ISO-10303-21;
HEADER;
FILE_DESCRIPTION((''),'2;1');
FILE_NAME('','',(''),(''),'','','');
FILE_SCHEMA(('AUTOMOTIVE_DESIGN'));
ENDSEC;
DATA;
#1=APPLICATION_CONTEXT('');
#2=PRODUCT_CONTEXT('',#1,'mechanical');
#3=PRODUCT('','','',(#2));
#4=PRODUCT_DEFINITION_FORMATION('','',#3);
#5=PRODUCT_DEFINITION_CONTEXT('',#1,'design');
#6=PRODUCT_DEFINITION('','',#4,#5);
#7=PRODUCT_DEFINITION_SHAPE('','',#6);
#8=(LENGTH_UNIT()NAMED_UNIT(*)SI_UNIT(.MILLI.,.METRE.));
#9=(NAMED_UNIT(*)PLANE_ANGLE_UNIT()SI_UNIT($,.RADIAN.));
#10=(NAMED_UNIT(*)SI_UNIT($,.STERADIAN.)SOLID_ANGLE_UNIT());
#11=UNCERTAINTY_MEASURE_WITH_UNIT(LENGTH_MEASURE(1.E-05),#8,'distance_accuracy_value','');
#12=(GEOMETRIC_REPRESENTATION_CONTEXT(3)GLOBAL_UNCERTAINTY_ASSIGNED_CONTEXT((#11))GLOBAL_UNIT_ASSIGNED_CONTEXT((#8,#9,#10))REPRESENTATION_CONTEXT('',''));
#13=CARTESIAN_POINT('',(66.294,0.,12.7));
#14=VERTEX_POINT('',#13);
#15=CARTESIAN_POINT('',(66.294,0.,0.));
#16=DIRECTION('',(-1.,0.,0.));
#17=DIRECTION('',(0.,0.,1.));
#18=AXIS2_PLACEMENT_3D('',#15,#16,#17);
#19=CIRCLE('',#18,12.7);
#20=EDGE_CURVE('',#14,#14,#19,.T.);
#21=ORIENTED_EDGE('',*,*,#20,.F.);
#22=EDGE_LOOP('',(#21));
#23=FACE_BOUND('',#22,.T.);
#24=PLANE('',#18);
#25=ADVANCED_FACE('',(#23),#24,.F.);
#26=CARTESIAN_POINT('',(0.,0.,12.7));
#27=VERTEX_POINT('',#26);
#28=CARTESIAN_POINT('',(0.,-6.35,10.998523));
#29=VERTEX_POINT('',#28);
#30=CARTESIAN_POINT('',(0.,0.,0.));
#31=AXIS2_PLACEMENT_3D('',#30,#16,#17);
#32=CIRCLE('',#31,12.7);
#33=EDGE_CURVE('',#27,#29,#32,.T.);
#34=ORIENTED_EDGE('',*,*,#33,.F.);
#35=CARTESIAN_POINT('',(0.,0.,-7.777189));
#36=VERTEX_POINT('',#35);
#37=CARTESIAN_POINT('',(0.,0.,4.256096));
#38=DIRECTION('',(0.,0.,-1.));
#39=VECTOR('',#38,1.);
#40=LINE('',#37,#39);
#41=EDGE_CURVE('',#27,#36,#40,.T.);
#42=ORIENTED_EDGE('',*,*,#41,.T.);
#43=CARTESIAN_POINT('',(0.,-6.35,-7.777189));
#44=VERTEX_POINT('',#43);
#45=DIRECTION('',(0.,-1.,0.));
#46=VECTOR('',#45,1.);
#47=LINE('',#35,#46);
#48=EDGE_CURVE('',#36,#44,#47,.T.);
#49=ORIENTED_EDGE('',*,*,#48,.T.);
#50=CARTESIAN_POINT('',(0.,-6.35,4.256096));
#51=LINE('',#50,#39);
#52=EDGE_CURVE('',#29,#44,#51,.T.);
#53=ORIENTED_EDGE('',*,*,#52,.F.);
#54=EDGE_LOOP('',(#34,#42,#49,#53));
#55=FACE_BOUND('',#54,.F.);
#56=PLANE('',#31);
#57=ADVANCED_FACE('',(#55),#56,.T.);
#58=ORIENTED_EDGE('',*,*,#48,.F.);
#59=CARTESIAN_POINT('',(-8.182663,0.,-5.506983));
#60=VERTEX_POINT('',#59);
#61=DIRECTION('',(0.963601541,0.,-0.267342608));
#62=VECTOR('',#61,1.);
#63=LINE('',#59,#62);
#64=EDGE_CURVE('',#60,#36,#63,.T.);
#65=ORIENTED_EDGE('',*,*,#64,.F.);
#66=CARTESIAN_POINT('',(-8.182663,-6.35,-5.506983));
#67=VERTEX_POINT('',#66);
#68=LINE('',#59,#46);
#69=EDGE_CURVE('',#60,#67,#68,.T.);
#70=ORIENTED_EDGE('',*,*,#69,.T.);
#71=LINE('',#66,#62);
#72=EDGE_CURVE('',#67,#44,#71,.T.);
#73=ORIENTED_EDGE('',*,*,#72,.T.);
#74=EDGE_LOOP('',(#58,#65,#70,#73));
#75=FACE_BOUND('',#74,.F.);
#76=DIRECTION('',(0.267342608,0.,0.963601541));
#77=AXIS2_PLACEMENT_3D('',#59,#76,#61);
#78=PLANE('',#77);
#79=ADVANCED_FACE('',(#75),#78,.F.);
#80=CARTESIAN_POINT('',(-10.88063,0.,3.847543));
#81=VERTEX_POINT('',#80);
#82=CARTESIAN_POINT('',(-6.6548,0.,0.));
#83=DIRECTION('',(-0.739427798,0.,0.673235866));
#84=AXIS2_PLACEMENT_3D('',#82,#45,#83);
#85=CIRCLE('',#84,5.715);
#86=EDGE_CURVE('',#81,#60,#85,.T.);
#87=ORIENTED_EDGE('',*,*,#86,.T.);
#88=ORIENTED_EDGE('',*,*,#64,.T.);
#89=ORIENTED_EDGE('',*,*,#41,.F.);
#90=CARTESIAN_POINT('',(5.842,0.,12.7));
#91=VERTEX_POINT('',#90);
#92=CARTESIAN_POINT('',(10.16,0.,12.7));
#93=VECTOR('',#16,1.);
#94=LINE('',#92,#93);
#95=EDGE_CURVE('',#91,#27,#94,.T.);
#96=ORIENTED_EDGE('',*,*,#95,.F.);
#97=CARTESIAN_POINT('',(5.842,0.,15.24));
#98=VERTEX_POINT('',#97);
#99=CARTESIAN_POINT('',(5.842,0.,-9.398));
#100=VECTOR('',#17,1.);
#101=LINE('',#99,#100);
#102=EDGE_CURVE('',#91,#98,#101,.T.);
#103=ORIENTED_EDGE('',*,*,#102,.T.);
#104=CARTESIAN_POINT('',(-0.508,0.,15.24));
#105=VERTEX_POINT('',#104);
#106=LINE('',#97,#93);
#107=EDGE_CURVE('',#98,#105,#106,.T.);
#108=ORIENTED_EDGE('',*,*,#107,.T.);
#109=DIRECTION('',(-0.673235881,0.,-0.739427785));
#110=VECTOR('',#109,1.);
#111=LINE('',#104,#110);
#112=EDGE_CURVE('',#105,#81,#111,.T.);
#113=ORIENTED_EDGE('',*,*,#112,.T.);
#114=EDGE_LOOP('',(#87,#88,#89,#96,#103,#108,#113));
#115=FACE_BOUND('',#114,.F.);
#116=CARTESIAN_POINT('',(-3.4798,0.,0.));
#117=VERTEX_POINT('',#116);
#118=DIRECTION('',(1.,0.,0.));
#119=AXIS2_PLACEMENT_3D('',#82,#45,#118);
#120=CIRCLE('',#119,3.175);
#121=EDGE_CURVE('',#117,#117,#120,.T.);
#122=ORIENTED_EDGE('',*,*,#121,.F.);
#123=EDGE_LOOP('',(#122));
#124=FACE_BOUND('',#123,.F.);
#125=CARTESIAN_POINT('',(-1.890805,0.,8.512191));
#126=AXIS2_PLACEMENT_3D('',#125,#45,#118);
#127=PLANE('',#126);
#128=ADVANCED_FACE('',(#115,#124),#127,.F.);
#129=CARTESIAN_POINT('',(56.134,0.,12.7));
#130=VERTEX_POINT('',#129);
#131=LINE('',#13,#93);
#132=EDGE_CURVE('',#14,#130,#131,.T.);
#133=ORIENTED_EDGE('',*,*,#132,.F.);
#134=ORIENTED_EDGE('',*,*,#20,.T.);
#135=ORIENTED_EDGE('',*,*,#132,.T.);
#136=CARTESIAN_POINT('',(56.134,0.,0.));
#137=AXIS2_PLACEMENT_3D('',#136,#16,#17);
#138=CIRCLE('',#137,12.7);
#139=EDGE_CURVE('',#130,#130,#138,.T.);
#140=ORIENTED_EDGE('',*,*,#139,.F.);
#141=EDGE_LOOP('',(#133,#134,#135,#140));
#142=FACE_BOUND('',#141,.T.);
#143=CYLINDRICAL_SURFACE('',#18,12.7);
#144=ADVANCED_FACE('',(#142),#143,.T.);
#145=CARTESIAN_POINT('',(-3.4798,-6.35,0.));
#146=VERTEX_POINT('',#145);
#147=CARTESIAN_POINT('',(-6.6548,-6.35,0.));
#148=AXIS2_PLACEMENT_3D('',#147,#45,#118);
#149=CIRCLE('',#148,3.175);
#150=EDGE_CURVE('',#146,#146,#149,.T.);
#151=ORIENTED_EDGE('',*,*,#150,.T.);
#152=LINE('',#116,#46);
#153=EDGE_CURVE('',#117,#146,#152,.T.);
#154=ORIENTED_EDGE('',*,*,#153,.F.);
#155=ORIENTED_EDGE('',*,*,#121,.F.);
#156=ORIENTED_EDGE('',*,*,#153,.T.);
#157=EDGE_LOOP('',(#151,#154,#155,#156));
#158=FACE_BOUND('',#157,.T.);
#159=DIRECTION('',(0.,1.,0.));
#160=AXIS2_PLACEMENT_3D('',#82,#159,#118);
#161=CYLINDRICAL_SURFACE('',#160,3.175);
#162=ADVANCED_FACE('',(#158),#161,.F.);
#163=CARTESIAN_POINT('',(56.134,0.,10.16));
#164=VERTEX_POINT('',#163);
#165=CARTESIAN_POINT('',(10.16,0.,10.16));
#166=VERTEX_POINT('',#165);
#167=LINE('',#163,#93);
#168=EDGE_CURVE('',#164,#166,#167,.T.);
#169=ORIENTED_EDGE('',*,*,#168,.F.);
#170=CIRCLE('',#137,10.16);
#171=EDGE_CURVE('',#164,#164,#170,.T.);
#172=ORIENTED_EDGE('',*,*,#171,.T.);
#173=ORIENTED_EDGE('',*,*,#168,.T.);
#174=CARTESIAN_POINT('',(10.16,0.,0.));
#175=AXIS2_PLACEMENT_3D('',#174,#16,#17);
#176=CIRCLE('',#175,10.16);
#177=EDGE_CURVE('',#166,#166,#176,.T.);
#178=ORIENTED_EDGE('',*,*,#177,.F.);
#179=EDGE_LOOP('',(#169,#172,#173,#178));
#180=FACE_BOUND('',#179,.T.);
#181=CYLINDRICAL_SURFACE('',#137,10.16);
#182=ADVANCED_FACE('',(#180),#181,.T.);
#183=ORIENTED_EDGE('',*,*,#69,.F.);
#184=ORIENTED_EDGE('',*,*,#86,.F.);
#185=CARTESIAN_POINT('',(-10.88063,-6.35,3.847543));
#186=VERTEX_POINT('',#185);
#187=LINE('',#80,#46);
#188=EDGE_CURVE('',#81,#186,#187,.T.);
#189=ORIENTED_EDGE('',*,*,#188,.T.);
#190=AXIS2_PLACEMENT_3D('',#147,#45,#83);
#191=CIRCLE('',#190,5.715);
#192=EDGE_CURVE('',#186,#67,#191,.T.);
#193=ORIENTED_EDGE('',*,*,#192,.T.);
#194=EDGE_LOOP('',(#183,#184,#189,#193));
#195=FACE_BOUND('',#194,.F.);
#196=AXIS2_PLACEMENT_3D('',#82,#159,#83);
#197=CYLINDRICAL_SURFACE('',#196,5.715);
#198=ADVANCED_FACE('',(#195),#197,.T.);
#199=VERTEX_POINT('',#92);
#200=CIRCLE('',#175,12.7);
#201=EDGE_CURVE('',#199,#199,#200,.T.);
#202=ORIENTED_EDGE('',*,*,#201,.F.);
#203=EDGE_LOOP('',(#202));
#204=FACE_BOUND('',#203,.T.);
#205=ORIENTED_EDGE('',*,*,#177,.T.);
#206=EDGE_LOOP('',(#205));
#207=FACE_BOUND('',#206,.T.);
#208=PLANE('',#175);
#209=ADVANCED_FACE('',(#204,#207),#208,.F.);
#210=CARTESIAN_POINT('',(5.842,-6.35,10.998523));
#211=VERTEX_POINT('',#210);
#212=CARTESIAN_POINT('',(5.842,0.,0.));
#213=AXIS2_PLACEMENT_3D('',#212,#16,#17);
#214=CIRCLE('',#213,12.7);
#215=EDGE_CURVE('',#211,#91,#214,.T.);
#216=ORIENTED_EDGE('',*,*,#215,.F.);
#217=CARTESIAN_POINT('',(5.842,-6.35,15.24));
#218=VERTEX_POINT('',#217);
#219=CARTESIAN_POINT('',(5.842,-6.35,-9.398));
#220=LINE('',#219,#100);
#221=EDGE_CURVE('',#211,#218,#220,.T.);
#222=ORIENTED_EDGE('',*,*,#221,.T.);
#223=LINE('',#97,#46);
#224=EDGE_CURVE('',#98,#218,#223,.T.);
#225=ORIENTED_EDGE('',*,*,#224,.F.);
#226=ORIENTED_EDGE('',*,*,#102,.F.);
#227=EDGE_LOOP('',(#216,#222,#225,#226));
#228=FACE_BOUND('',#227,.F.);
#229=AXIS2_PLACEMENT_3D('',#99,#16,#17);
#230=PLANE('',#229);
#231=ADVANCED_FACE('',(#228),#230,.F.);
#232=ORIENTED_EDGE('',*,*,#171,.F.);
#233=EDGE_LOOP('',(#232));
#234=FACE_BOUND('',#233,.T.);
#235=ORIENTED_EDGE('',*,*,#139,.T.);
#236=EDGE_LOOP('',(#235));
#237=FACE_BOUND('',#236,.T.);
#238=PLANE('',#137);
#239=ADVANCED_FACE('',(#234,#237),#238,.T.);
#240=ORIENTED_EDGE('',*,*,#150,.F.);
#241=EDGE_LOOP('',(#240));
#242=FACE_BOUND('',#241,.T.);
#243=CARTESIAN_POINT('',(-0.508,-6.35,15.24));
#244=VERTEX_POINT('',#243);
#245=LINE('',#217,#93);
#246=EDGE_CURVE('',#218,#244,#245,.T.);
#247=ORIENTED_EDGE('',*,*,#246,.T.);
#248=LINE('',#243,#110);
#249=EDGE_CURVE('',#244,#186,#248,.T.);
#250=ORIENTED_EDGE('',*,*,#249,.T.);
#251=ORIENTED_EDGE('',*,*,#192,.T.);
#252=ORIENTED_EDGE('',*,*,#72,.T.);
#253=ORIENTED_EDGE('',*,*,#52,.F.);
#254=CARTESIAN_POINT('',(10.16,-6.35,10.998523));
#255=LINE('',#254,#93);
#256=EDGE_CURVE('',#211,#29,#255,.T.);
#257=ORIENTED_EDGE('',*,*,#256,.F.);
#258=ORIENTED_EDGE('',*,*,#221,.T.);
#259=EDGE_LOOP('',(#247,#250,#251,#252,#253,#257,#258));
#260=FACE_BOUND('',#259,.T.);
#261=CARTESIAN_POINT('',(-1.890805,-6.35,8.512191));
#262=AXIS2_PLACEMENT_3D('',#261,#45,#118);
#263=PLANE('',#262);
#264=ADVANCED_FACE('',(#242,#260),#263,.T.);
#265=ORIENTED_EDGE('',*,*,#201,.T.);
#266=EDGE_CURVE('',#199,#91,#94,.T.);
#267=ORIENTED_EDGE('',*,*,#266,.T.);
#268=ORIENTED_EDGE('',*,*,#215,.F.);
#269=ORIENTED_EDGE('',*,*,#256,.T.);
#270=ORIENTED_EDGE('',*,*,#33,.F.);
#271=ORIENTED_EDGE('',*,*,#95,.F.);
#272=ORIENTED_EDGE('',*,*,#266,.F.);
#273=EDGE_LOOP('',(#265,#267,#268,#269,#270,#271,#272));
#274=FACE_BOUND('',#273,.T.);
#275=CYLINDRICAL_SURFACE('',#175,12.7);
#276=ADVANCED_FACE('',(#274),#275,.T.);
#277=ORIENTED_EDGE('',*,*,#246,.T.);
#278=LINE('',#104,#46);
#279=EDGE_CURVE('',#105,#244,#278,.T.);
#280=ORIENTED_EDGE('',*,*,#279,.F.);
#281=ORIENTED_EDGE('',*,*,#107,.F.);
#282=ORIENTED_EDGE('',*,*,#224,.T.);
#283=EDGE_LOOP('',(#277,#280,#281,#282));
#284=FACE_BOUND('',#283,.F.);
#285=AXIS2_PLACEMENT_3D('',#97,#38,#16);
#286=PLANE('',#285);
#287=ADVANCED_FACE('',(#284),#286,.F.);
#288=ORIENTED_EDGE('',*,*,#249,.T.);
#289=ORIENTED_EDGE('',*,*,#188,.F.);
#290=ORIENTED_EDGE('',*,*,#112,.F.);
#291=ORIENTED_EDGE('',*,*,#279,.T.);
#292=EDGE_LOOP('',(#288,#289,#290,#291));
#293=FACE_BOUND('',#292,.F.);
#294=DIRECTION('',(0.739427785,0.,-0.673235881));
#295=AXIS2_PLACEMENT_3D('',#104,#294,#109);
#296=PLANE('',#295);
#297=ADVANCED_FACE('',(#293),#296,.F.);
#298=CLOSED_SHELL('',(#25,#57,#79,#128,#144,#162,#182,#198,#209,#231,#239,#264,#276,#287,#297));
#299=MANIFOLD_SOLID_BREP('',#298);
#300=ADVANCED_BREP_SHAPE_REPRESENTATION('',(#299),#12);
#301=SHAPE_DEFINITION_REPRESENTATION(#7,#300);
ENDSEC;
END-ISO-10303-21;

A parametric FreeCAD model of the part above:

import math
import FreeCAD as App
import Part
import Sketcher
from FreeCAD import Vector
Q = App.Units.Quantity

doc = App.newDocument("Part")
body = doc.addObject("PartDesign::Body", "Body")

# Sketch on XZ plane
sketch1 = body.newObject("Sketcher::SketchObject", "Sketch")
sketch1.AttachmentSupport = (doc.getObject("XZ_Plane"), [""])
sketch1.MapMode = "FlatFace"
sketch1.addGeometry([
    Part.LineSegment(Vector(66.3, 0, 0), Vector(66.3, 12.7, 0)),  # 0
    Part.LineSegment(Vector(66.3, 12.7, 0), Vector(56.1, 12.7, 0)),  # 1
    Part.LineSegment(Vector(56.1, 12.7, 0), Vector(56.1, 10.2, 0)),  # 2
    Part.LineSegment(Vector(56.1, 10.2, 0), Vector(10.2, 10.2, 0)),  # 3
    Part.LineSegment(Vector(10.2, 10.2, 0), Vector(10.2, 12.7, 0)),  # 4
    Part.LineSegment(Vector(10.2, 12.7, 0), Vector(0, 12.7, 0)),  # 5
    Part.LineSegment(Vector(0, 12.7, 0), Vector(0, 0, 0)),  # 6
    Part.LineSegment(Vector(0, 0, 0), Vector(66.3, 0, 0)),  # 7
], False)
sketch1.addConstraint([
    Sketcher.Constraint("Coincident", 0, 2, 1, 1),
    Sketcher.Constraint("Coincident", 1, 2, 2, 1),
    Sketcher.Constraint("Coincident", 2, 2, 3, 1),
    Sketcher.Constraint("Coincident", 3, 2, 4, 1),
    Sketcher.Constraint("Coincident", 4, 2, 5, 1),
    Sketcher.Constraint("Coincident", 5, 2, 6, 1),
    Sketcher.Constraint("Coincident", 6, 2, 7, 1),
    Sketcher.Constraint("Coincident", 7, 2, 0, 1),
    Sketcher.Constraint("Vertical", 0),
    Sketcher.Constraint("Horizontal", 1),
    Sketcher.Constraint("Vertical", 2),
    Sketcher.Constraint("Horizontal", 3),
    Sketcher.Constraint("Vertical", 4),
    Sketcher.Constraint("Horizontal", 5),
    Sketcher.Constraint("Vertical", 6),
    Sketcher.Constraint("Horizontal", 7),
    Sketcher.Constraint("Coincident", 6, 2, -1, 1),
    Sketcher.Constraint("Horizontal", 1, 2, 4, 2),
    Sketcher.Constraint("Equal", 1, 5),
    Sketcher.Constraint("DistanceX", 1, 2, 1, 1, Q("0.4 in")),
    Sketcher.Constraint("DistanceY", 0, 1, 0, 2, Q("0.5 in")),
    Sketcher.Constraint("DistanceY", 2, 2, 2, 1, Q("0.1 in")),
    Sketcher.Constraint("DistanceX", 3, 2, 3, 1, Q("1.81 in")),
])
revolution = body.newObject("PartDesign::Revolution", "Revolution")
revolution.Profile = sketch1
revolution.ReferenceAxis = (sketch1, ["H_Axis"])
revolution.Angle = 360

# Sketch on XZ plane
sketch2 = body.newObject("Sketcher::SketchObject", "Sketch001")
sketch2.AttachmentSupport = (doc.getObject("XZ_Plane"), [""])
sketch2.MapMode = "FlatFace"
sketch2.addGeometry([
    Part.LineSegment(Vector(5.8, -9.4, 0), Vector(5.8, 15.2, 0)),  # 0
    Part.LineSegment(Vector(5.8, 15.2, 0), Vector(-0.5, 15.2, 0)),  # 1
    Part.LineSegment(Vector(-0.5, 15.2, 0), Vector(-10.9, 3.8, 0)),  # 2
    Part.ArcOfCircle(Part.Circle(Vector(-6.7, 0, 0), Vector(0, 0, 1), 5.7), math.radians(138), math.radians(254)),  # 3
    Part.LineSegment(Vector(-8.2, -5.5, 0), Vector(5.8, -9.4, 0)),  # 4
    Part.Circle(Vector(-6.7, 0, 0), Vector(0, 0, 1), 3.2),  # 5
], False)
sketch2.addConstraint([
    Sketcher.Constraint("Coincident", 0, 2, 1, 1),
    Sketcher.Constraint("Coincident", 1, 2, 2, 1),
    Sketcher.Constraint("Tangent", 2, 2, 3, 1),
    Sketcher.Constraint("Tangent", 3, 2, 4, 1),
    Sketcher.Constraint("Coincident", 4, 2, 0, 1),
    Sketcher.Constraint("Vertical", 0),
    Sketcher.Constraint("Horizontal", 1),
    Sketcher.Constraint("Coincident", 5, 3, 3, 3),
    Sketcher.Constraint("PointOnObject", 3, 3, -1),
    Sketcher.Constraint("Diameter", 5, Q("0.25 in")),
    Sketcher.Constraint("Radius", 3, Q("0.225 in")),
    Sketcher.Constraint("DistanceX", 1, 2, 1, 1, Q("0.25 in")),
    Sketcher.Constraint("DistanceY", 0, 1, 0, 2, Q("0.97 in")),
    Sketcher.Constraint("DistanceY", -1, 1, 0, 2, Q("0.6 in")),
    Sketcher.Constraint("DistanceX", -1, 1, 0, 2, Q("0.23 in")),
    Sketcher.Constraint("DistanceX", 3, 3, -1, 1, Q("0.262 in")),
])
pad1 = body.newObject("PartDesign::Pad", "Pad")
pad1.Profile = sketch2
pad1.Length = Q("0.25 in")

doc.recompute()
